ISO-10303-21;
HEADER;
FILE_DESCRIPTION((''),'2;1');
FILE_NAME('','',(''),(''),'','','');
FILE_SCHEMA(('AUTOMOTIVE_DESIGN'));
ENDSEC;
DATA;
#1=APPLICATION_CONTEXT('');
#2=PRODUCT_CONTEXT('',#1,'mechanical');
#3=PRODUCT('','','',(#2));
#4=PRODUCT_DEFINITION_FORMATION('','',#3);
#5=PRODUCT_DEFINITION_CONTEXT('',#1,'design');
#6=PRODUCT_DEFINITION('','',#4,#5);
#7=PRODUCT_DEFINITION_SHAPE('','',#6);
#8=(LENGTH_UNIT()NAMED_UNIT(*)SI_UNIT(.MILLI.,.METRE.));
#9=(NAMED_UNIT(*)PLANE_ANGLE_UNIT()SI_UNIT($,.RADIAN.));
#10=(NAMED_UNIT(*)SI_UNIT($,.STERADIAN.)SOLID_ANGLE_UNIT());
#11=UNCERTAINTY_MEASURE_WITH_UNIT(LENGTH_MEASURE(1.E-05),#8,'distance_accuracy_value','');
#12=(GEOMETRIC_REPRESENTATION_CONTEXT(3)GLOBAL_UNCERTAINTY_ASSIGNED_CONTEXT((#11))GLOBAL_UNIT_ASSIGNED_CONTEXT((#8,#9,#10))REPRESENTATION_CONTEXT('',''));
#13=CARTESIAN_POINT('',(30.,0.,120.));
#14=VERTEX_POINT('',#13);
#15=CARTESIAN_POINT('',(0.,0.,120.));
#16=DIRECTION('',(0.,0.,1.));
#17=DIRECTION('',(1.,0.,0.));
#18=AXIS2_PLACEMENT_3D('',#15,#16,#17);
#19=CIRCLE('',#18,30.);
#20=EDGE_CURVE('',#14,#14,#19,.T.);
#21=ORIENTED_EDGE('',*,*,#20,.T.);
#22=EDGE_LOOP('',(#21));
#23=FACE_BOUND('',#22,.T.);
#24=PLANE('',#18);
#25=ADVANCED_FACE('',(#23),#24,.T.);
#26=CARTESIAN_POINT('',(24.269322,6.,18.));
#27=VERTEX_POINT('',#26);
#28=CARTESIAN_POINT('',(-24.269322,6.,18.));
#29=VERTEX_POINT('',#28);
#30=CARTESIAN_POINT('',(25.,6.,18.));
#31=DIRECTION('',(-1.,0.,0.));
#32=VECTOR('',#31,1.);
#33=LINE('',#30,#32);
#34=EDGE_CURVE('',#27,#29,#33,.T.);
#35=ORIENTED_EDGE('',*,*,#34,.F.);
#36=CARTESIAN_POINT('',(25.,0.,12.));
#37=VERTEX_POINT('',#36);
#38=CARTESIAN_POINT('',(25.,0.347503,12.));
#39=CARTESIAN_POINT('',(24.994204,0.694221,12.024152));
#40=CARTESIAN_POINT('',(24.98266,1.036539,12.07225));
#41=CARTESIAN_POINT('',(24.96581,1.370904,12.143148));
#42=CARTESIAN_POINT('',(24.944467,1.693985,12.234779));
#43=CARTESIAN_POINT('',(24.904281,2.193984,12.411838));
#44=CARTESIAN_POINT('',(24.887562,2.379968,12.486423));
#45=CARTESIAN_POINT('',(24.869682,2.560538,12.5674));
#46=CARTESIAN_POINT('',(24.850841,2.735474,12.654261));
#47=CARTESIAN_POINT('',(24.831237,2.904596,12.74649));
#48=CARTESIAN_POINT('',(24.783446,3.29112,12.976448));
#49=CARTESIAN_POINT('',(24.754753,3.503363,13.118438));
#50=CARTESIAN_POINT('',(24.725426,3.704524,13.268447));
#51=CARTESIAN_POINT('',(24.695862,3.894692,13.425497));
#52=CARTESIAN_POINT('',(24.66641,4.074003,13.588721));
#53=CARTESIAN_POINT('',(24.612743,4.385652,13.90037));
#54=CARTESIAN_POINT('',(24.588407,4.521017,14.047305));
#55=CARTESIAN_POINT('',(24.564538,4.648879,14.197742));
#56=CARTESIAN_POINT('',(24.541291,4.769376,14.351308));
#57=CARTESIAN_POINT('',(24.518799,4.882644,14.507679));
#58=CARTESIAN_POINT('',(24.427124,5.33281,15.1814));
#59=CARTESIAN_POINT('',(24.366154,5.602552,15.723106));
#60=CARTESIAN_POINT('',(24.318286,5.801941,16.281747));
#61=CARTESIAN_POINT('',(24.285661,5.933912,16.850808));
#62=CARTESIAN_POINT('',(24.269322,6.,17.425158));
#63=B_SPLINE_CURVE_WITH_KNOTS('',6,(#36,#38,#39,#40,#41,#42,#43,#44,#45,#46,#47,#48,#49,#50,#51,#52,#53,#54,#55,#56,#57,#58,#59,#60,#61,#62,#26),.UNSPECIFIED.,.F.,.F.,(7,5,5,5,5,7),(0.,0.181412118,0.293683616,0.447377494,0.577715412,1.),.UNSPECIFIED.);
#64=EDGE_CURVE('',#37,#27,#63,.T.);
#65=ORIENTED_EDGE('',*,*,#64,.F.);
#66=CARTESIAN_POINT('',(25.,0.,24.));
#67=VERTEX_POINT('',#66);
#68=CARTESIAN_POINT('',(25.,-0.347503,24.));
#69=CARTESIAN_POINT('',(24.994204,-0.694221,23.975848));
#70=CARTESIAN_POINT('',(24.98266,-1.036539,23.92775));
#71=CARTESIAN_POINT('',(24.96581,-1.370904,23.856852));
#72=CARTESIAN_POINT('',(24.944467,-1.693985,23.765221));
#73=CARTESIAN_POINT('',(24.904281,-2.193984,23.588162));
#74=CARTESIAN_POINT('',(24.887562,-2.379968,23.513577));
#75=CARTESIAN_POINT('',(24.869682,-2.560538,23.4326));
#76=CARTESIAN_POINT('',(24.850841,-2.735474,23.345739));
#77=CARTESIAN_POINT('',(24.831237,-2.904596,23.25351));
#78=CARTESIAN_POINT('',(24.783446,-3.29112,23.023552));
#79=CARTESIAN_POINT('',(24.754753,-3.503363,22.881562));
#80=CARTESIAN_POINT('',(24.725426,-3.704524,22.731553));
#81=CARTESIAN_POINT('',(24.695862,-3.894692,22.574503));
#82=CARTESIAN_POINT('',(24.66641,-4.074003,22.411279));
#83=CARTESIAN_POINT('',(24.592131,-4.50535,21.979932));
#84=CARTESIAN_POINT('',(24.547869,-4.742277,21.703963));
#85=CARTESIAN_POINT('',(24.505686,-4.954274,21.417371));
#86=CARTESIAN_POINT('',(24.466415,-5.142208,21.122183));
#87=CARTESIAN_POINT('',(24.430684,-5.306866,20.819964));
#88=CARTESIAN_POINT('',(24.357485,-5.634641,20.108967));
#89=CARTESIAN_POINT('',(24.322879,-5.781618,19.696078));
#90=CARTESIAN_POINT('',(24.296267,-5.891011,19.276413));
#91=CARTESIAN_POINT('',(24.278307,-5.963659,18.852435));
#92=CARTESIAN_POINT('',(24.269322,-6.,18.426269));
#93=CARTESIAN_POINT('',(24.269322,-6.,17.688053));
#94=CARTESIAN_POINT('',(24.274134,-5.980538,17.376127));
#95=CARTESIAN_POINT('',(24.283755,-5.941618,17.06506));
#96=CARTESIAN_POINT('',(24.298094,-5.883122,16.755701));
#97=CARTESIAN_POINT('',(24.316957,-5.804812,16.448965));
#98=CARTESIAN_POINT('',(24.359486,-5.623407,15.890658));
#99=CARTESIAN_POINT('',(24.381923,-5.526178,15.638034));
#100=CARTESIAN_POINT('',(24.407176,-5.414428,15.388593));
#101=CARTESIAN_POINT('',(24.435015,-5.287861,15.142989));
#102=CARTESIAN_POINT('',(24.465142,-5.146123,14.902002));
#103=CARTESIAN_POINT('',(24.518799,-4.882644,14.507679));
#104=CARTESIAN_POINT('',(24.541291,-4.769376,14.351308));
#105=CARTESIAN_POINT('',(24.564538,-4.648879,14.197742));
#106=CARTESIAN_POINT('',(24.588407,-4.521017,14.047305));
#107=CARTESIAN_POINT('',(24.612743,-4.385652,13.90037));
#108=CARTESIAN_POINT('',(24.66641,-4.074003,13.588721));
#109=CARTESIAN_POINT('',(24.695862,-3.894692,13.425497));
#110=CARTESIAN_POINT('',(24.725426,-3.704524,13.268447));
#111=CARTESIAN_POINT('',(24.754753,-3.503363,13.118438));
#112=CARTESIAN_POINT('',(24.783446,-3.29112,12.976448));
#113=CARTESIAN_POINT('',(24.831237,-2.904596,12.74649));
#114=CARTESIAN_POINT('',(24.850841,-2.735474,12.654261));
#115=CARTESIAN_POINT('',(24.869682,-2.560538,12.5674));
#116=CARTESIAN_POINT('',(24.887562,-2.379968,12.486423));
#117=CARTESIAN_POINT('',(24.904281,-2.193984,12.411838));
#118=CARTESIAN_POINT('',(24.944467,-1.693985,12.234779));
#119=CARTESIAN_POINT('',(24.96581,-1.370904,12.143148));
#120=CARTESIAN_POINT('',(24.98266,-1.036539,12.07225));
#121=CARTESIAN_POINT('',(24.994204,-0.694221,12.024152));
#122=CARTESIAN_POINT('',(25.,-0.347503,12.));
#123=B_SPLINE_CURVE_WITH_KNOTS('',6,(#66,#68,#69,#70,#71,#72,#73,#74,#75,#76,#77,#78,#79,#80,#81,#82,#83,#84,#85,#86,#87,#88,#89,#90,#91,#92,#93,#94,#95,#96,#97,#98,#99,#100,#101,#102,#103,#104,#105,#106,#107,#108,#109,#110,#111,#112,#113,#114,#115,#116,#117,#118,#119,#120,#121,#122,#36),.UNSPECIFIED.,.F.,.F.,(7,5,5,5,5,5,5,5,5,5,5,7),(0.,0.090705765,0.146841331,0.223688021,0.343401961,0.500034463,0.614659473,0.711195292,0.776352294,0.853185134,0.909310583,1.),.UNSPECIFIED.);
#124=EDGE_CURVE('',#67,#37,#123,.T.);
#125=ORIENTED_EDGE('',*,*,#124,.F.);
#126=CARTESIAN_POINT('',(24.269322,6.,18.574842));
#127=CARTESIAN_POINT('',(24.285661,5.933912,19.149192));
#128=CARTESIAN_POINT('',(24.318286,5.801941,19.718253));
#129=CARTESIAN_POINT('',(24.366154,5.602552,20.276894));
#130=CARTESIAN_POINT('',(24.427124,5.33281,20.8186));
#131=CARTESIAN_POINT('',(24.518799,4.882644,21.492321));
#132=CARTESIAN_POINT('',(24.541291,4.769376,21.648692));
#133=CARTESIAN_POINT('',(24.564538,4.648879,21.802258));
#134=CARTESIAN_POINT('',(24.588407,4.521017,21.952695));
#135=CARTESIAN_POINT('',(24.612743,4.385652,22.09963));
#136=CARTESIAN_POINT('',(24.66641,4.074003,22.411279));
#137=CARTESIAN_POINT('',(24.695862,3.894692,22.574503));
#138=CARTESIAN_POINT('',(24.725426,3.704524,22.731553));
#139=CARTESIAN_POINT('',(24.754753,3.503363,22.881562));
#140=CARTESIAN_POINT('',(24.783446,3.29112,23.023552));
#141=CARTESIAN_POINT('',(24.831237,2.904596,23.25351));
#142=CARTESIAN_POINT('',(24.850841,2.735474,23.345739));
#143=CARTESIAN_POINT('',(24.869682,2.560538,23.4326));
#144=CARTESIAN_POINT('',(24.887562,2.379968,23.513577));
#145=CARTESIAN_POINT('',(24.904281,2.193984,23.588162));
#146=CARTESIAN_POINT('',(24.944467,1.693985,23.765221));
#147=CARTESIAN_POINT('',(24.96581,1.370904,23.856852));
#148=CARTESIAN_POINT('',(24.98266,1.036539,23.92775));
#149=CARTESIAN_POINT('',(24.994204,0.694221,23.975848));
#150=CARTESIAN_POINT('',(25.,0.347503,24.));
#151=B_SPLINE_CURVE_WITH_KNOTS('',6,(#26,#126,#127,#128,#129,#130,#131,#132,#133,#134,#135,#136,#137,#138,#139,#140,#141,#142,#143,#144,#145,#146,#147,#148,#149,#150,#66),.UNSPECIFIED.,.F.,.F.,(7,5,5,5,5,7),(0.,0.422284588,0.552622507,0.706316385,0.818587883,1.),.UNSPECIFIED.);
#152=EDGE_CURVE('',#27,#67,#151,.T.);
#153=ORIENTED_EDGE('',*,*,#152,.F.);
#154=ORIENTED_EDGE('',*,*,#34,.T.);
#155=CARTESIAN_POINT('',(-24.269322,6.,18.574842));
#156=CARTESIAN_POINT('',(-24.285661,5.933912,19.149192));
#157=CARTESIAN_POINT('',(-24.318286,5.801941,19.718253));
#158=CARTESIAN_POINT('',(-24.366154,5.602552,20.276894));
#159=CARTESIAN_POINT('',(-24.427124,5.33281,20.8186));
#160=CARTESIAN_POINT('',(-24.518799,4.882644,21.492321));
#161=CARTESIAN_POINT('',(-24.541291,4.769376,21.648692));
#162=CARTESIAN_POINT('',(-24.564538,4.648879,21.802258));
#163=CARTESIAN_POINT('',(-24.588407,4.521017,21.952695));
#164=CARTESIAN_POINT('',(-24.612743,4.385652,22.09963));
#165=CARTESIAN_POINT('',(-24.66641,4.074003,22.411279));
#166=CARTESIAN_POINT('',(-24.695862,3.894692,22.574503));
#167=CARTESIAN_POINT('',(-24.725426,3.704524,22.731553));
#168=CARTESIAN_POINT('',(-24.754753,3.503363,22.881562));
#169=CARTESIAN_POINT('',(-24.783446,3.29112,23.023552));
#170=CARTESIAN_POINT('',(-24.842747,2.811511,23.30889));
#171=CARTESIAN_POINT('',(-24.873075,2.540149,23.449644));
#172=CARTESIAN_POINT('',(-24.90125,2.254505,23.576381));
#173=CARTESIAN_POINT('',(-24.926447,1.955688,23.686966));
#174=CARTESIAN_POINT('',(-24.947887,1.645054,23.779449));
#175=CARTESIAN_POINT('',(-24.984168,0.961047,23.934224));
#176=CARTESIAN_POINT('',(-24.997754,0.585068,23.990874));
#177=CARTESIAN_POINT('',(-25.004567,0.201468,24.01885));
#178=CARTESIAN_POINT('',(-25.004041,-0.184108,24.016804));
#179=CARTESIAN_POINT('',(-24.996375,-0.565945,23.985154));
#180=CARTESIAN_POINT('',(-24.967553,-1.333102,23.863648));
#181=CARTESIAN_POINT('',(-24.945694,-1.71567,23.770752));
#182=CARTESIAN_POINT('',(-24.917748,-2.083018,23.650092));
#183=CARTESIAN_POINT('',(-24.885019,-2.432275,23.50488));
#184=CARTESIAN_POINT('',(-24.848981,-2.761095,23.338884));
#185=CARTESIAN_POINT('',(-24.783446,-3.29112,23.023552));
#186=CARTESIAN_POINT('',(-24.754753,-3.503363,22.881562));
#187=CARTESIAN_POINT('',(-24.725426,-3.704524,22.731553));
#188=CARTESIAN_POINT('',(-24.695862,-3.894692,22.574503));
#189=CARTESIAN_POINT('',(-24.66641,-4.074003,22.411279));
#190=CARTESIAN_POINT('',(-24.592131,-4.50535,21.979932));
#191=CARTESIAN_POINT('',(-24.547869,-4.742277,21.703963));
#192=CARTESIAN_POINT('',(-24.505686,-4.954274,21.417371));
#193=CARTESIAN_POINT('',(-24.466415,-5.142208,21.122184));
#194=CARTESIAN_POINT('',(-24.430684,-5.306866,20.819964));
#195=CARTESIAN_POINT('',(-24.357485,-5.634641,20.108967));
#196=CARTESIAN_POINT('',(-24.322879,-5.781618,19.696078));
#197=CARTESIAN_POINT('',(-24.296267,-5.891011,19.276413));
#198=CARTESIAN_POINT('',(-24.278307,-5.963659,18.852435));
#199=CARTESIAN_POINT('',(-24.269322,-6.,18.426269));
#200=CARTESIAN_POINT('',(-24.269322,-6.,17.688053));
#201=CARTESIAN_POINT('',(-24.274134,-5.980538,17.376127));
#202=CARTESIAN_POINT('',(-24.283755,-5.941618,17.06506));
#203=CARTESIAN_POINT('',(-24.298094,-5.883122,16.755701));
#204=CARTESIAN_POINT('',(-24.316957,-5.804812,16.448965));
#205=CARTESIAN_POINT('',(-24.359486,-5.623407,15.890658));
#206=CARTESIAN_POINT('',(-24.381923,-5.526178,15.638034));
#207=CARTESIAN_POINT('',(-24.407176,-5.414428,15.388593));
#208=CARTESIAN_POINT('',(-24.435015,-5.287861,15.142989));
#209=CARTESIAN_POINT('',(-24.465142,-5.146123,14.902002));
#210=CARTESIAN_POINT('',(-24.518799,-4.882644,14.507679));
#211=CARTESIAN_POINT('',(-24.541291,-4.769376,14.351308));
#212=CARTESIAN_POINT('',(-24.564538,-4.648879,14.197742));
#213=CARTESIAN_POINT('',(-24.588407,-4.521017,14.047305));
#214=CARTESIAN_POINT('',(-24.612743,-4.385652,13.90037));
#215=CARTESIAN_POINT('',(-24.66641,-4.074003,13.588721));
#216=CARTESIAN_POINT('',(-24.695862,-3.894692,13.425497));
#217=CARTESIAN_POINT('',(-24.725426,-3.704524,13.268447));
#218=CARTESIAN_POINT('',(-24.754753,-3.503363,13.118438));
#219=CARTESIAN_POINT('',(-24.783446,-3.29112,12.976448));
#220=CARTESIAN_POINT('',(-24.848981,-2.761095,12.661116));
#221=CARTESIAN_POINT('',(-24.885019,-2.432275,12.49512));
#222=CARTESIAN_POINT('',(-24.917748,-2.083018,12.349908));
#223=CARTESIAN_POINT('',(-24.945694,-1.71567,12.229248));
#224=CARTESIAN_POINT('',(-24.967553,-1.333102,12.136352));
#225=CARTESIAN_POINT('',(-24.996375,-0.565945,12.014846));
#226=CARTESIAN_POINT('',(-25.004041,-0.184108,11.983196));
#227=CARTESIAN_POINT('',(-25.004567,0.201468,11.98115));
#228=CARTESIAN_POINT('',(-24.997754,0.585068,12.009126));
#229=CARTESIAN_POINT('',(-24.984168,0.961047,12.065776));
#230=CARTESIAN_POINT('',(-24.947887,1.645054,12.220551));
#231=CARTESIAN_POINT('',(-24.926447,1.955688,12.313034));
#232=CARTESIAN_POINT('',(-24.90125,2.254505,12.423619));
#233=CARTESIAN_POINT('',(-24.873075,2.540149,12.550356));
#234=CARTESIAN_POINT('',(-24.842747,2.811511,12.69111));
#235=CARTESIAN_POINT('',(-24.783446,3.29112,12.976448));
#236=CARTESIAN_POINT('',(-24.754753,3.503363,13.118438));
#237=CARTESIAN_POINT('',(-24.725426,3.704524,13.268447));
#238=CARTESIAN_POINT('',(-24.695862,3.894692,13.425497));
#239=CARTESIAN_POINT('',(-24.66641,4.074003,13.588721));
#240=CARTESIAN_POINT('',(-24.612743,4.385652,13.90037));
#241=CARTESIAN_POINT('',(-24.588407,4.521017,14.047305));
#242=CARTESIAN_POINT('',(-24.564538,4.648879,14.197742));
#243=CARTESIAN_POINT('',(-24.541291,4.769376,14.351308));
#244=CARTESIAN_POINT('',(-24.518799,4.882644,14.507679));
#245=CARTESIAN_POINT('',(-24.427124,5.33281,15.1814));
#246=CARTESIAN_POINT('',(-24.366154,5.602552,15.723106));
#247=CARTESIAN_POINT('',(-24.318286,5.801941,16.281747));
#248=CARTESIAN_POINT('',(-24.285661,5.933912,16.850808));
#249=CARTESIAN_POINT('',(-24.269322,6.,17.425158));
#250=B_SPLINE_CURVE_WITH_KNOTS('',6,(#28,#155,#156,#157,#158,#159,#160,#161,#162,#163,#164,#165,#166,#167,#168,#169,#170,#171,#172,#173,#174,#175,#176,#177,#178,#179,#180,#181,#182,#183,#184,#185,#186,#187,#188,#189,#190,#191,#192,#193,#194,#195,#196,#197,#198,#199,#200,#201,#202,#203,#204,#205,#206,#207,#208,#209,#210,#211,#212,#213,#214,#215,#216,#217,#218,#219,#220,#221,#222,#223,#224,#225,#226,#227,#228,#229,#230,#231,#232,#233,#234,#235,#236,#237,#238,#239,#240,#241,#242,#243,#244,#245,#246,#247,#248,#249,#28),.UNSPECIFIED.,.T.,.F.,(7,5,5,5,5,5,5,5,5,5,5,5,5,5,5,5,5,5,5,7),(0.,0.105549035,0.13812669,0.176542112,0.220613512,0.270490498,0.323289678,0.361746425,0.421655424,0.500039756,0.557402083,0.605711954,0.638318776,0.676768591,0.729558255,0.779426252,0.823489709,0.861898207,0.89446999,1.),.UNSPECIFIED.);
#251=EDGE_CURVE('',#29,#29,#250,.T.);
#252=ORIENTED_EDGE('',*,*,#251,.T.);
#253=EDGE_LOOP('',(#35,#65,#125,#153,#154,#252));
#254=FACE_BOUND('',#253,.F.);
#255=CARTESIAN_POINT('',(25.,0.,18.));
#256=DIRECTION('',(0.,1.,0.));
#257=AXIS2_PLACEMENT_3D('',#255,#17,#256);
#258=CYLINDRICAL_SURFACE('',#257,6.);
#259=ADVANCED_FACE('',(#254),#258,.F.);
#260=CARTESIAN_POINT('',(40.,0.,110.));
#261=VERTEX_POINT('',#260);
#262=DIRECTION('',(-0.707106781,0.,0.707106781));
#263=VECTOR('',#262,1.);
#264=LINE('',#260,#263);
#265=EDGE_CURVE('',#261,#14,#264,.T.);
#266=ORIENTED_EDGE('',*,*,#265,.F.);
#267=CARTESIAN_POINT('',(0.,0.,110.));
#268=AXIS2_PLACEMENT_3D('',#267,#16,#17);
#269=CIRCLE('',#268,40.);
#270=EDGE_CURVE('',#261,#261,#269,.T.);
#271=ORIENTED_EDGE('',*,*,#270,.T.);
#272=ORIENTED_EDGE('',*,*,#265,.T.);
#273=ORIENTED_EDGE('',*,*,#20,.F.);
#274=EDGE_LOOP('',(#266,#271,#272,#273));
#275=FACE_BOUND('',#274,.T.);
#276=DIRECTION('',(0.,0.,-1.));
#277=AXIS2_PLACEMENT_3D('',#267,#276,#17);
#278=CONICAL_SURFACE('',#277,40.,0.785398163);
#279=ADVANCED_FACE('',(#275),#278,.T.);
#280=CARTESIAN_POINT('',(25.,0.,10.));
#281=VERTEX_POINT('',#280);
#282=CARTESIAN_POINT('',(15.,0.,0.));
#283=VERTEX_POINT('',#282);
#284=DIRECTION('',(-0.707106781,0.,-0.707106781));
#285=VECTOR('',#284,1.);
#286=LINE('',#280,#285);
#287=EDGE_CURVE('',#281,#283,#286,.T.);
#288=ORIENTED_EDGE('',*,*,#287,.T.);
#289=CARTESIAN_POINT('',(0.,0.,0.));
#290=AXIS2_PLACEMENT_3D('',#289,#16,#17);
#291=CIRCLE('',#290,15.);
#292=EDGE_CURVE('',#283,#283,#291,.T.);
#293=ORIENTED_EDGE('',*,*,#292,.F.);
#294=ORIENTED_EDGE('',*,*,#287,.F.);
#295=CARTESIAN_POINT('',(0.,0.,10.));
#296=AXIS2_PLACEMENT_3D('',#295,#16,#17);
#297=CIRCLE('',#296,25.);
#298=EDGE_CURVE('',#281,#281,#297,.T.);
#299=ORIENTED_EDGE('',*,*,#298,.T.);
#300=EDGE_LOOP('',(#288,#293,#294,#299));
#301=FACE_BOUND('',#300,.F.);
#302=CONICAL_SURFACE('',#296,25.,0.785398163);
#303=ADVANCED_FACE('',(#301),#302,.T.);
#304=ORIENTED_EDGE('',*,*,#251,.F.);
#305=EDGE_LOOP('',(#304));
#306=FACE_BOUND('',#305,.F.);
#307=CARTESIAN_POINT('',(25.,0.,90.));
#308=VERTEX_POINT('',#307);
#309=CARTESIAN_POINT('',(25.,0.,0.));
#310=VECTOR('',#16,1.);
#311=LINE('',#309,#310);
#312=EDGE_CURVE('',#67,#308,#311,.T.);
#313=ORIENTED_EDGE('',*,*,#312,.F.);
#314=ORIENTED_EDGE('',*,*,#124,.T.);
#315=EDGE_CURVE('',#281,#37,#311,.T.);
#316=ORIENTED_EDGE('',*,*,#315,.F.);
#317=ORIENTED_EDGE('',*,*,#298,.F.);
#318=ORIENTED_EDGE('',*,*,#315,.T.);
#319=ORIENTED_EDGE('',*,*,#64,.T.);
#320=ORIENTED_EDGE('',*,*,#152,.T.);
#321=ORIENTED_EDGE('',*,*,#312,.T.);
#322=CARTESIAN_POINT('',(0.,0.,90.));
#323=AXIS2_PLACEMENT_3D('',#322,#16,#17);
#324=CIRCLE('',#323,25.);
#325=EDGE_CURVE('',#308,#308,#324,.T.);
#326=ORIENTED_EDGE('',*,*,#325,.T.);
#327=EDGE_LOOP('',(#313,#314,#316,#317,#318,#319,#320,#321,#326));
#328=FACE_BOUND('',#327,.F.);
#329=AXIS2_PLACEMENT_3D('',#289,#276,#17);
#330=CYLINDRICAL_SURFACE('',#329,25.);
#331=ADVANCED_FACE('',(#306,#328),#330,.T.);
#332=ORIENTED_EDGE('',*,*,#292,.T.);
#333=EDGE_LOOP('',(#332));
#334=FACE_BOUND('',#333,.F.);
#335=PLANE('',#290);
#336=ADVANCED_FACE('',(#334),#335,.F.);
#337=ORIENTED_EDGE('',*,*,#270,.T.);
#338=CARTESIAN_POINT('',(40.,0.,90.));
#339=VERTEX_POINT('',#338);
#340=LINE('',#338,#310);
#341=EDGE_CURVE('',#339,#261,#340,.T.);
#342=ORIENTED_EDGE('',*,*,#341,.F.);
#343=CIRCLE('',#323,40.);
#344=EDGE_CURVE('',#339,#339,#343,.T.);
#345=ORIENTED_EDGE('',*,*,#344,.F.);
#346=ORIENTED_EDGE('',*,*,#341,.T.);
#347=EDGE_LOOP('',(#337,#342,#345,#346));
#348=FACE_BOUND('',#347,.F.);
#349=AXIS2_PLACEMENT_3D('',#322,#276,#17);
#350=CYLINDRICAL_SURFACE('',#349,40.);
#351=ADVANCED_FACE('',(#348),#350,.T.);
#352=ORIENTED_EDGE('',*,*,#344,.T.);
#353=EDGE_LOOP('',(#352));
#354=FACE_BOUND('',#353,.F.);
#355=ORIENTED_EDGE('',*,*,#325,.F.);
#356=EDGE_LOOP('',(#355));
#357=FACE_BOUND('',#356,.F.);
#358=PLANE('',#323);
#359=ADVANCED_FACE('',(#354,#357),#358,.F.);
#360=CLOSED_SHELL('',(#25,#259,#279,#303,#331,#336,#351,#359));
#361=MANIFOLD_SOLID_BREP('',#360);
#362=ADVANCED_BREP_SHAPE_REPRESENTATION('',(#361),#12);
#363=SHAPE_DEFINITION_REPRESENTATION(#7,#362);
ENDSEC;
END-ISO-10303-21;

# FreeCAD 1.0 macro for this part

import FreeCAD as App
import Part
import Sketcher
from FreeCAD import Vector


def edges_at(feature, points):
    """Names of the edges that pass closest to the given points."""
    edges = feature.Shape.Edges
    near = lambda p: min(range(len(edges)), key=lambda i: edges[i].distToShape(Part.Vertex(*p))[0])
    return sorted({f"Edge{near(p) + 1}" for p in points})

doc = App.newDocument("Part")
body = doc.addObject("PartDesign::Body", "Body")

# Sketch on XY plane
sketch1 = body.newObject("Sketcher::SketchObject", "Sketch")
sketch1.AttachmentSupport = (doc.getObject("XY_Plane"), [""])
sketch1.MapMode = "FlatFace"
sketch1.addGeometry(Part.Circle(Vector(0, 0, 0), Vector(0, 0, 1), 25), False)
sketch1.addConstraint(Sketcher.Constraint("Coincident", 0, 3, -1, 1))
sketch1.addConstraint(Sketcher.Constraint("Diameter", 0, 50.0))
pad1 = body.newObject("PartDesign::Pad", "Pad")
pad1.Profile = sketch1
pad1.Length = 90

# Sketch on XY plane
sketch2 = body.newObject("Sketcher::SketchObject", "Sketch001")
sketch2.AttachmentSupport = (doc.getObject("XY_Plane"), [""])
sketch2.MapMode = "FlatFace"
sketch2.AttachmentOffset = App.Placement(Vector(0, 0, 90), App.Rotation())
sketch2.addGeometry(Part.Circle(Vector(0, 0, 0), Vector(0, 0, 1), 40), False)
sketch2.addConstraint(Sketcher.Constraint("Coincident", 0, 3, -1, 1))
sketch2.addConstraint(Sketcher.Constraint("Diameter", 0, 80.0))
pad2 = body.newObject("PartDesign::Pad", "Pad001")
pad2.Profile = sketch2
pad2.Length = 30
doc.recompute()

chamfer = body.newObject("PartDesign::Chamfer", "Chamfer")
chamfer.Base = (pad2, edges_at(pad2, [(-40, 0, 120)]))
chamfer.ChamferType = "Two distances"
chamfer.Size = 10
chamfer.Size2 = 10

# Sketch on YZ plane
sketch3 = body.newObject("Sketcher::SketchObject", "Sketch002")
sketch3.AttachmentSupport = (doc.getObject("YZ_Plane"), [""])
sketch3.MapMode = "FlatFace"
sketch3.AttachmentOffset = App.Placement(Vector(0, 0, 25), App.Rotation())
sketch3.addGeometry(Part.Circle(Vector(0, 18, 0), Vector(0, 0, 1), 6), False)
sketch3.addConstraint(Sketcher.Constraint("PointOnObject", 0, 3, -2))
sketch3.addConstraint(Sketcher.Constraint("Diameter", 0, 12.0))
sketch3.addConstraint(Sketcher.Constraint("DistanceY", -1, 1, 0, 3, 18.0))
pocket1 = body.newObject("PartDesign::Pocket", "Pocket")
pocket1.Profile = sketch3
pocket1.Type = "ThroughAll"
doc.recompute()

chamfer2 = body.newObject("PartDesign::Chamfer", "Chamfer001")
chamfer2.Base = (pocket1, edges_at(pocket1, [(-25, 0, 0)]))
chamfer2.ChamferType = "Two distances"
chamfer2.Size = 10
chamfer2.Size2 = 10

doc.recompute()
